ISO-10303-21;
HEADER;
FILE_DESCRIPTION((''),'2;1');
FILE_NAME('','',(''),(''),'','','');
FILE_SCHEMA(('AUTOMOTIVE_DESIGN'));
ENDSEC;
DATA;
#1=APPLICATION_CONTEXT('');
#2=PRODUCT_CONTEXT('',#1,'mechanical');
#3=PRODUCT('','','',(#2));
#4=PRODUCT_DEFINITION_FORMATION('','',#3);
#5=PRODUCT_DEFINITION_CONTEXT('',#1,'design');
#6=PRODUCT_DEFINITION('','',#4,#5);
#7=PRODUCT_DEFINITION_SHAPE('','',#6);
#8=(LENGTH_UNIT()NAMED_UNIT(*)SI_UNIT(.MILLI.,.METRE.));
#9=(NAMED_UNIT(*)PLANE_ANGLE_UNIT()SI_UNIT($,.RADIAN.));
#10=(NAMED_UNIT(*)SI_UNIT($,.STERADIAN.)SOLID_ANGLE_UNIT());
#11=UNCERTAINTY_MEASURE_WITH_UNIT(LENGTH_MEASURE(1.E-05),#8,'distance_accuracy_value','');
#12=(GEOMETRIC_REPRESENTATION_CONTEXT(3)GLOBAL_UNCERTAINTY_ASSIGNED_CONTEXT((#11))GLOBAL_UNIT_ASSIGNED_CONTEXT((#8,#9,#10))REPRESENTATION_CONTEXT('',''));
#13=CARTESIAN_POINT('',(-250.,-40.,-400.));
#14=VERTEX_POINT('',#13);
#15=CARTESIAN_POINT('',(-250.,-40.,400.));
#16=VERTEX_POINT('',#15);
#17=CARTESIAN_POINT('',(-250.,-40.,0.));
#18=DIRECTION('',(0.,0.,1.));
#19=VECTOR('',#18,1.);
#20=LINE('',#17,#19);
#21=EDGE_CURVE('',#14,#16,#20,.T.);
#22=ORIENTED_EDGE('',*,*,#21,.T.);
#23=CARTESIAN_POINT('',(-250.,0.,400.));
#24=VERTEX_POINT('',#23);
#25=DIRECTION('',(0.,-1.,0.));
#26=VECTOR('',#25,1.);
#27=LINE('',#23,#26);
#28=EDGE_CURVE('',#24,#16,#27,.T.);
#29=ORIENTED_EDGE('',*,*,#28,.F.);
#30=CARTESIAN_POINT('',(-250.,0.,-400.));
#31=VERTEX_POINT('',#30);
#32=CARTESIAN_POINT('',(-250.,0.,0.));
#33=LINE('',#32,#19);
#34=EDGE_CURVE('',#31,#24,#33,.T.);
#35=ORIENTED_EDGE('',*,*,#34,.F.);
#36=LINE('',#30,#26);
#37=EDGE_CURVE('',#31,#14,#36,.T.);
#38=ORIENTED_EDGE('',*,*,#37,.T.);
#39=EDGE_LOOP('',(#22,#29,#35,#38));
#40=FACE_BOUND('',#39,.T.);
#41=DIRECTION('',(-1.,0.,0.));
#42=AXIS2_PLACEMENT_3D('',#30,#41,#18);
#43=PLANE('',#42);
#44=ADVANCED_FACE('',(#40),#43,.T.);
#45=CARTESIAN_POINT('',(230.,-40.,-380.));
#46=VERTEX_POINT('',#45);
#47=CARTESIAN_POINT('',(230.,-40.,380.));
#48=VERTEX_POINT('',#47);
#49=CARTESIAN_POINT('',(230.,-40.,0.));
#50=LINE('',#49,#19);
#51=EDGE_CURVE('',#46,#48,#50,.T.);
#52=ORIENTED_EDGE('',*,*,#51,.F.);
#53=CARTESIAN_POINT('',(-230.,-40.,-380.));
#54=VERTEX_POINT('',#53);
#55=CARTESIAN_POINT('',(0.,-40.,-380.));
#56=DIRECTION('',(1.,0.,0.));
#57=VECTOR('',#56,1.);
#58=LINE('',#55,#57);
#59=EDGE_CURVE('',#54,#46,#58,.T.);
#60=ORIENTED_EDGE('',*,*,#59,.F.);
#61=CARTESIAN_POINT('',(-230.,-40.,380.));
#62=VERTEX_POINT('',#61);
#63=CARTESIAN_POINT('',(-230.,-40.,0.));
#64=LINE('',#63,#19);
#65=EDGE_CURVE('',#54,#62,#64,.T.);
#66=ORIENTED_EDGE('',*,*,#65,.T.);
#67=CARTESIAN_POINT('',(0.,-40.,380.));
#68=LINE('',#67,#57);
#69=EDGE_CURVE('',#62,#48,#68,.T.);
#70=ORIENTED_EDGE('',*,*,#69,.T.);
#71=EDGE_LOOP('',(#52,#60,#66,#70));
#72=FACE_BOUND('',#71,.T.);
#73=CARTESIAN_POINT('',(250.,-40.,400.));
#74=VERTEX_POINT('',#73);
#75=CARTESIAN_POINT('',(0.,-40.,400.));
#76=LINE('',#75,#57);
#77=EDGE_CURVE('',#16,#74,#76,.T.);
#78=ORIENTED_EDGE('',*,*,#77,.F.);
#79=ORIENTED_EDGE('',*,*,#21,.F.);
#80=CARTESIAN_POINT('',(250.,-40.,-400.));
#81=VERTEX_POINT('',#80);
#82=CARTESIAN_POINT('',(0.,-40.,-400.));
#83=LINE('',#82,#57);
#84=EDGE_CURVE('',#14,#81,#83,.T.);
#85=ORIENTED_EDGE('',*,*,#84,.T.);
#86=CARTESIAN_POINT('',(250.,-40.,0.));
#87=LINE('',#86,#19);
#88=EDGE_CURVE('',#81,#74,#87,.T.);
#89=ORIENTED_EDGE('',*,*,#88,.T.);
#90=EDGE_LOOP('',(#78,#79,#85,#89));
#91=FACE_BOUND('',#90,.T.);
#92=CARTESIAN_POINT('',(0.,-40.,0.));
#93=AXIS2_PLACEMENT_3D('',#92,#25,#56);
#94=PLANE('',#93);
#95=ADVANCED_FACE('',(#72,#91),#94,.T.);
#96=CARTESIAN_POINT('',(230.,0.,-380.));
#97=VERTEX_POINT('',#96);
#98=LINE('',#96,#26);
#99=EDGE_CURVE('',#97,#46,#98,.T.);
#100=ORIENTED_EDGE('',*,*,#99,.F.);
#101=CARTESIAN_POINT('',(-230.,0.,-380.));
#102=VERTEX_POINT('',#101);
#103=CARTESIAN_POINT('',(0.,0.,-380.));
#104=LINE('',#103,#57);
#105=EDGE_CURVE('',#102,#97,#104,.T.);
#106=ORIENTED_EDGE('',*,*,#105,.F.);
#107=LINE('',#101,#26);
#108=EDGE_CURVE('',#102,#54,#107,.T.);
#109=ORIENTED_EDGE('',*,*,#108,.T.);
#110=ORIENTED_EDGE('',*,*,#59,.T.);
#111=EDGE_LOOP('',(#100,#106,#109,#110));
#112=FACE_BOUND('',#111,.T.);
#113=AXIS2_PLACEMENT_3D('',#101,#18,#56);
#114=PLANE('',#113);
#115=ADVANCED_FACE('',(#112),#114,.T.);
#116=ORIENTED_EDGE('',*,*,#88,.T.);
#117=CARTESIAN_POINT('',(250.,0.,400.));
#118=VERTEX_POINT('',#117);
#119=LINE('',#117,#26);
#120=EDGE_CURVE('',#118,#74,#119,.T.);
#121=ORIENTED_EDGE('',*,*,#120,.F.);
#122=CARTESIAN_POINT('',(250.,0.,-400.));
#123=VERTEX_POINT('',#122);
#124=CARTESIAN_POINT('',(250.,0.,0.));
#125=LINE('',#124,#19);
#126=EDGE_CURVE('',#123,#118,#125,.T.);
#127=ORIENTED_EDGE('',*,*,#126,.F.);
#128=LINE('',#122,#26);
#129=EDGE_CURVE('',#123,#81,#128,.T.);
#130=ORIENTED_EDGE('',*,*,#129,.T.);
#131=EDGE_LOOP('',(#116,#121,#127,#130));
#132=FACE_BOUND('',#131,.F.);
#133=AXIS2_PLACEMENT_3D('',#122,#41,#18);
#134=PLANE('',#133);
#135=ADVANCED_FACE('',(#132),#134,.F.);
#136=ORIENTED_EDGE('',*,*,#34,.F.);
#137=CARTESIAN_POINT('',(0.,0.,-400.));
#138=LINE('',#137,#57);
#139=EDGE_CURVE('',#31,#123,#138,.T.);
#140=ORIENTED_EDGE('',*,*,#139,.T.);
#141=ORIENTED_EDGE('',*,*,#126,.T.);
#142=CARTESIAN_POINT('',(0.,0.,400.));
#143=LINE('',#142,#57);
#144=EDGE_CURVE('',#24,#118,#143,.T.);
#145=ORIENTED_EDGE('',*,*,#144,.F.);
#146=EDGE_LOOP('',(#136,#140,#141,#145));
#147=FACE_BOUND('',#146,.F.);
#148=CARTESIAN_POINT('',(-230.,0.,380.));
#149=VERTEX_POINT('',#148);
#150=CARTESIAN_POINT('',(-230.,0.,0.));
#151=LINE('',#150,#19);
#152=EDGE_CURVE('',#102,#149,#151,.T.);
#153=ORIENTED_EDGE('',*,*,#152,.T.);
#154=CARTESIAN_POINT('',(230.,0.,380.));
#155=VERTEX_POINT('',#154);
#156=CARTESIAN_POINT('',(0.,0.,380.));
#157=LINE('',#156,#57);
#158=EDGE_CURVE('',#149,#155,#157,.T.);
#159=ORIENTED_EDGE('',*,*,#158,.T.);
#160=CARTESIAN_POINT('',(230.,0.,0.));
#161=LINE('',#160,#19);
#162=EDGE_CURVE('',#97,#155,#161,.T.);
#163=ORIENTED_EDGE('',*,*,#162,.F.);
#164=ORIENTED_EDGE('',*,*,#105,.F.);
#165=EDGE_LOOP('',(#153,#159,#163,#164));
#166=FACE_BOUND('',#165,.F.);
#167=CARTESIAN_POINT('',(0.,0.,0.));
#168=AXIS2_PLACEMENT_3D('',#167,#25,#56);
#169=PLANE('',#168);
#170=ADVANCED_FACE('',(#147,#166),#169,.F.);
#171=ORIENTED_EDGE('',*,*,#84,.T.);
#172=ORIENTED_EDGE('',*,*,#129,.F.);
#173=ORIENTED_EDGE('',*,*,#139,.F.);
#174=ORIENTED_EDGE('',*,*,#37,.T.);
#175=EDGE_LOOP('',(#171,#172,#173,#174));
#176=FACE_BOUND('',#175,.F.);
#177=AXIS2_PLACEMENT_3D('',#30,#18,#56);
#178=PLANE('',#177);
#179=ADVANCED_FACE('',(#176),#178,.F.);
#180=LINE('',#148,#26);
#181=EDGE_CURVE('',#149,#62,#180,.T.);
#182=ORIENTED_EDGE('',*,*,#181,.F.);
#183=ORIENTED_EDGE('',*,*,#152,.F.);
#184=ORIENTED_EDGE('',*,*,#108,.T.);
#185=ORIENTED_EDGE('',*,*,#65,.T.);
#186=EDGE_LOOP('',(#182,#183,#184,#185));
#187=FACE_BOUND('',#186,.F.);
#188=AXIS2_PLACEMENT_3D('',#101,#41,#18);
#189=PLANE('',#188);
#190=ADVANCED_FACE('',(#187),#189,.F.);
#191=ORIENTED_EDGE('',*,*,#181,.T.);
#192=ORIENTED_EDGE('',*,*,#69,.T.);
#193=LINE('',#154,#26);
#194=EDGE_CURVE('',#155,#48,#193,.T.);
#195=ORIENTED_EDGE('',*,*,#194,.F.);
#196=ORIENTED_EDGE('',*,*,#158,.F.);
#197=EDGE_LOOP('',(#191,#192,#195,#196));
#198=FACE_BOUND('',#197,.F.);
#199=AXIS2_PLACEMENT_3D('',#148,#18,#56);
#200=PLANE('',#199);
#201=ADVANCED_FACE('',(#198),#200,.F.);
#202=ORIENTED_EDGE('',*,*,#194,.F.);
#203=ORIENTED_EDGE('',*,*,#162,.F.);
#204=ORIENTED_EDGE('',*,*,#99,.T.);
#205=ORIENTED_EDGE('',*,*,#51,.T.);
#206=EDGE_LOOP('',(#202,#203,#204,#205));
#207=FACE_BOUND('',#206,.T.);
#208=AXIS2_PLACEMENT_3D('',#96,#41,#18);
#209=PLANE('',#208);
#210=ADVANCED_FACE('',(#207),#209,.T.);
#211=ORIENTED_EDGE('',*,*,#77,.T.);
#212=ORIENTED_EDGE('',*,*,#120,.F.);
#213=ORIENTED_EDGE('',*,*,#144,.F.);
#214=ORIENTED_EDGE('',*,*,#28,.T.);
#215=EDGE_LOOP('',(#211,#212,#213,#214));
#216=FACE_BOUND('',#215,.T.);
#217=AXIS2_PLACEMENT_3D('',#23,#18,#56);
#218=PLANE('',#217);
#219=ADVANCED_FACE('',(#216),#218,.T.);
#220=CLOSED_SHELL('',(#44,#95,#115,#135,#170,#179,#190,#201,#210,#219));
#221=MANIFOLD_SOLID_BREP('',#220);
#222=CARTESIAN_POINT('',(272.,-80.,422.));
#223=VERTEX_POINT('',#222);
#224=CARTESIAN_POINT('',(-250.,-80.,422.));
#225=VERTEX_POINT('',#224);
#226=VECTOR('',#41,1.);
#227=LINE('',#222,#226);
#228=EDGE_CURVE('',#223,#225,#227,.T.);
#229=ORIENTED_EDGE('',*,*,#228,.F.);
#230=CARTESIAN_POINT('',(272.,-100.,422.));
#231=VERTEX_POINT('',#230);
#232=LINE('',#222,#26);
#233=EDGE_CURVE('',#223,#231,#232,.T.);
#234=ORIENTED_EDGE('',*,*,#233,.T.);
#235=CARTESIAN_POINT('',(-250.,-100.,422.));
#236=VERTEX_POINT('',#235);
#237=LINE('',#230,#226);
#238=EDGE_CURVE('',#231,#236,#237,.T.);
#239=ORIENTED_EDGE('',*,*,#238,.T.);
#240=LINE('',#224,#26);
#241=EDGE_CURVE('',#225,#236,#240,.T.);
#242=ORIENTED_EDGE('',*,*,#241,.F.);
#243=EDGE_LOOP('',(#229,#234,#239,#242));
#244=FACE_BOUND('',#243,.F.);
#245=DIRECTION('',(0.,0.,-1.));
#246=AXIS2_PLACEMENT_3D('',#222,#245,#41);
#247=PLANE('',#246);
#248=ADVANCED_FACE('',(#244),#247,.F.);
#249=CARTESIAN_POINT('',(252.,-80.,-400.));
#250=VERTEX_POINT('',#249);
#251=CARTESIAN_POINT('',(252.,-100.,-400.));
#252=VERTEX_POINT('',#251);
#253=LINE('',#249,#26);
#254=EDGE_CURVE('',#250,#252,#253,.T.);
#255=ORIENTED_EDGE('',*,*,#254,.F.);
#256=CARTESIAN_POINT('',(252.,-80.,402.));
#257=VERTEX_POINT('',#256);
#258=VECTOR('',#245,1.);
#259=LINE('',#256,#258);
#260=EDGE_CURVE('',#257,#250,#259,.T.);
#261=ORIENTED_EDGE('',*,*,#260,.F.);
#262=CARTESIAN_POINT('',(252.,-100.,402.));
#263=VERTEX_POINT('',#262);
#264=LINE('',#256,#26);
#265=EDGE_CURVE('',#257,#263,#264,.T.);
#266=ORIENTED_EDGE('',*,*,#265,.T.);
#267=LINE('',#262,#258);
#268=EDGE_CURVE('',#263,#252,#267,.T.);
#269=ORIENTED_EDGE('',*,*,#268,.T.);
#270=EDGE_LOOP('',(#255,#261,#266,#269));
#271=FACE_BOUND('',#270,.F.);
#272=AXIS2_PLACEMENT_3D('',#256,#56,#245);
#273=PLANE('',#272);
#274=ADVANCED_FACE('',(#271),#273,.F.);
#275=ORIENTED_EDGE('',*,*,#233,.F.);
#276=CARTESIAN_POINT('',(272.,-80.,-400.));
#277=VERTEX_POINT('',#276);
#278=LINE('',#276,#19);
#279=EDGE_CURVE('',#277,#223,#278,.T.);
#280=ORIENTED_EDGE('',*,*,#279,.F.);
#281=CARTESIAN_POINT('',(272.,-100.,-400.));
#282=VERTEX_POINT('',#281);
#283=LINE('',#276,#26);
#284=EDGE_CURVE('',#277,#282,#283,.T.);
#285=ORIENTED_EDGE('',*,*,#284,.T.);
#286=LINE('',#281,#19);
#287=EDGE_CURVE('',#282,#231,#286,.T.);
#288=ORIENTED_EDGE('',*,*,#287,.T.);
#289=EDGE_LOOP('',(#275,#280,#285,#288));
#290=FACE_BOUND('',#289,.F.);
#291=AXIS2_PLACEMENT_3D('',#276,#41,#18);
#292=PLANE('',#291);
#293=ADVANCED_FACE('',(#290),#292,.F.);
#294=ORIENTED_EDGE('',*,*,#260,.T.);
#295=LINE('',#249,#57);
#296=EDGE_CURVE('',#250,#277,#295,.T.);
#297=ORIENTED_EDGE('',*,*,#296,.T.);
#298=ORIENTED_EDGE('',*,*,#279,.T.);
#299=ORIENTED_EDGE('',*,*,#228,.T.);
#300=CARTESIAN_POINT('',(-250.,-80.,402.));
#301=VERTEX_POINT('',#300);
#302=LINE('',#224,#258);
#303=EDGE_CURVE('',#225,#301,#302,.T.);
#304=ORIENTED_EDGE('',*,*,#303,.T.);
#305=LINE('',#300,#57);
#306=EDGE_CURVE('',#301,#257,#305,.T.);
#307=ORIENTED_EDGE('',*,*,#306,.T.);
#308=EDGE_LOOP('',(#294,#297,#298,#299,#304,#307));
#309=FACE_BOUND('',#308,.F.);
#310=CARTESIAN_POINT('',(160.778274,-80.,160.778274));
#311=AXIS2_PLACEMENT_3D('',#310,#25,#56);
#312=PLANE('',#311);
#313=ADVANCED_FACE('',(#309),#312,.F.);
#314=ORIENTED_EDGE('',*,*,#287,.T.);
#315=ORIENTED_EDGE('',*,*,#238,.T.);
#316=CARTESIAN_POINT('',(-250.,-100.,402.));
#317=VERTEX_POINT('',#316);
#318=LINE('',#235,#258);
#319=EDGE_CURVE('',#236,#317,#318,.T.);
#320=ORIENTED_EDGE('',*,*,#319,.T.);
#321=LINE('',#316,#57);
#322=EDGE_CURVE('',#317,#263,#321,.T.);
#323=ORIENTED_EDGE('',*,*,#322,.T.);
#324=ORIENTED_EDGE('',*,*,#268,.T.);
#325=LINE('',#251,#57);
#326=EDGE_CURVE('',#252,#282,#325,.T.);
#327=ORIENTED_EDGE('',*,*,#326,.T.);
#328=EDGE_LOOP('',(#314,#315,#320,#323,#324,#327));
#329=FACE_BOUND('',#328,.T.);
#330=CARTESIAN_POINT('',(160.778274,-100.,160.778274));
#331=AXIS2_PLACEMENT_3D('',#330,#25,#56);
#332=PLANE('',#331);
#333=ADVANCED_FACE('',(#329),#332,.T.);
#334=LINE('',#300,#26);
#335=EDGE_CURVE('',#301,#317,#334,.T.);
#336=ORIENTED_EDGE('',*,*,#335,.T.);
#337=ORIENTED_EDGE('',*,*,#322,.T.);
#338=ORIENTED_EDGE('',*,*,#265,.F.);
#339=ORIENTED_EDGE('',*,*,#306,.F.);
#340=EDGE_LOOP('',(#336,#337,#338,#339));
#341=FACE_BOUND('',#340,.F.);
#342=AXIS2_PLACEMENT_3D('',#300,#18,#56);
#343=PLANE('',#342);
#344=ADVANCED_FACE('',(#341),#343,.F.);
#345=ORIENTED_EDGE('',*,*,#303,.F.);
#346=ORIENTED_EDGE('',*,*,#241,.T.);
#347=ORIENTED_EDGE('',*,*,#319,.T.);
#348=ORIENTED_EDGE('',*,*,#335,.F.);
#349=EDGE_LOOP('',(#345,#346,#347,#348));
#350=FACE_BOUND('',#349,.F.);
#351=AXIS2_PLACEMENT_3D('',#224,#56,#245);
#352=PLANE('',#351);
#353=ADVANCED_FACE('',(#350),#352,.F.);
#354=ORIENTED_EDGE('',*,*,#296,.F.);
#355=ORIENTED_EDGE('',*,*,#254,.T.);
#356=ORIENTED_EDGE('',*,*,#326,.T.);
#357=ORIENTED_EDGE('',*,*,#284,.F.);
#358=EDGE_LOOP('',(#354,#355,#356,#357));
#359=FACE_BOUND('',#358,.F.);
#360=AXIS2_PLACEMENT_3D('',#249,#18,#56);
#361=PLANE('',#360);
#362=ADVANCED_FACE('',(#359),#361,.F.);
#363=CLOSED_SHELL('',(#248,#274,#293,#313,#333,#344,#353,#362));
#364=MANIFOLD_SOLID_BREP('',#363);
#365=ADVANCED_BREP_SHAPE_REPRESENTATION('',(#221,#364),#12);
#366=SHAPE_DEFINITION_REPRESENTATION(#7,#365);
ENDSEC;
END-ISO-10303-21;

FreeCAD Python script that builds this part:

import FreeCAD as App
import Part
import Sketcher
from FreeCAD import Vector

doc = App.newDocument("Part")
body = doc.addObject("PartDesign::Body", "Body")

sketch1 = doc.addObject("Sketcher::SketchObject", "Sketch")
body.addObject(sketch1)
sketch1.AttachmentSupport = (doc.XZ_Plane, [""])
sketch1.MapMode = "FlatFace"
sketch1.addGeometry([
    Part.LineSegment(Vector(-250, 400, 0), Vector(-250, -400, 0)),
    Part.LineSegment(Vector(-250, -400, 0), Vector(250, -400, 0)),
    Part.LineSegment(Vector(250, -400, 0), Vector(250, 400, 0)),
    Part.LineSegment(Vector(250, 400, 0), Vector(-250, 400, 0)),
    Part.LineSegment(Vector(230, -380, 0), Vector(-230, -380, 0)),
    Part.LineSegment(Vector(-230, -380, 0), Vector(-230, 380, 0)),
    Part.LineSegment(Vector(-230, 380, 0), Vector(230, 380, 0)),
    Part.LineSegment(Vector(230, 380, 0), Vector(230, -380, 0)),
], False)
sketch1.addConstraint([
    Sketcher.Constraint("Coincident", 0, 2, 1, 1),
    Sketcher.Constraint("Coincident", 1, 2, 2, 1),
    Sketcher.Constraint("Coincident", 2, 2, 3, 1),
    Sketcher.Constraint("Coincident", 3, 2, 0, 1),
    Sketcher.Constraint("Coincident", 4, 2, 5, 1),
    Sketcher.Constraint("Coincident", 5, 2, 6, 1),
    Sketcher.Constraint("Coincident", 6, 2, 7, 1),
    Sketcher.Constraint("Coincident", 7, 2, 4, 1),
    Sketcher.Constraint("Vertical", 0),
    Sketcher.Constraint("Horizontal", 1),
    Sketcher.Constraint("Vertical", 2),
    Sketcher.Constraint("Horizontal", 3),
    Sketcher.Constraint("Horizontal", 4),
    Sketcher.Constraint("Vertical", 5),
    Sketcher.Constraint("Horizontal", 6),
    Sketcher.Constraint("Vertical", 7),
    Sketcher.Constraint("Symmetric", 0, 2, 2, 2, -1, 1),
    Sketcher.Constraint("Symmetric", 4, 2, 6, 2, -1, 1),
    Sketcher.Constraint("DistanceX", 1, 1, 1, 2, 500.0),
    Sketcher.Constraint("DistanceX", 4, 2, 4, 1, 460.0),
    Sketcher.Constraint("DistanceY", 0, 2, 0, 1, 800.0),
    Sketcher.Constraint("DistanceY", 5, 1, 5, 2, 760.0),
])
pad1 = doc.addObject("PartDesign::Pad", "Pad")
body.addObject(pad1)
pad1.Profile = sketch1
pad1.Length = 40
body2 = doc.addObject("PartDesign::Body", "Body001")

sketch2 = doc.addObject("Sketcher::SketchObject", "Sketch001")
body2.addObject(sketch2)
sketch2.AttachmentSupport = (doc.getObject("XZ_Plane001"), [""])
sketch2.MapMode = "FlatFace"
sketch2.AttachmentOffset = App.Placement(Vector(0, 0, 80), App.Rotation())
sketch2.addGeometry([
    Part.LineSegment(Vector(-250, 402, 0), Vector(252, 402, 0)),
    Part.LineSegment(Vector(252, 402, 0), Vector(252, -400, 0)),
    Part.LineSegment(Vector(252, -400, 0), Vector(272, -400, 0)),
    Part.LineSegment(Vector(272, -400, 0), Vector(272, 422, 0)),
    Part.LineSegment(Vector(272, 422, 0), Vector(-250, 422, 0)),
    Part.LineSegment(Vector(-250, 422, 0), Vector(-250, 402, 0)),
], False)
sketch2.addConstraint([
    Sketcher.Constraint("Coincident", 0, 2, 1, 1),
    Sketcher.Constraint("Coincident", 1, 2, 2, 1),
    Sketcher.Constraint("Coincident", 2, 2, 3, 1),
    Sketcher.Constraint("Coincident", 3, 2, 4, 1),
    Sketcher.Constraint("Coincident", 4, 2, 5, 1),
    Sketcher.Constraint("Coincident", 5, 2, 0, 1),
    Sketcher.Constraint("Horizontal", 0),
    Sketcher.Constraint("Vertical", 1),
    Sketcher.Constraint("Horizontal", 2),
    Sketcher.Constraint("Vertical", 3),
    Sketcher.Constraint("Horizontal", 4),
    Sketcher.Constraint("Vertical", 5),
    Sketcher.Constraint("Equal", 2, 5),
    Sketcher.Constraint("DistanceX", 0, 1, 0, 2, 502.0),
    Sketcher.Constraint("DistanceX", 2, 1, 2, 2, 20.0),
    Sketcher.Constraint("DistanceY", 1, 2, 1, 1, 802.0),
    Sketcher.Constraint("DistanceX", -1, 1, 0, 2, 252.0),
    Sketcher.Constraint("DistanceY", -1, 1, 0, 2, 402.0),
])
pad2 = doc.addObject("PartDesign::Pad", "Pad001")
body2.addObject(pad2)
pad2.Profile = sketch2
pad2.Length = 20

doc.recompute()
